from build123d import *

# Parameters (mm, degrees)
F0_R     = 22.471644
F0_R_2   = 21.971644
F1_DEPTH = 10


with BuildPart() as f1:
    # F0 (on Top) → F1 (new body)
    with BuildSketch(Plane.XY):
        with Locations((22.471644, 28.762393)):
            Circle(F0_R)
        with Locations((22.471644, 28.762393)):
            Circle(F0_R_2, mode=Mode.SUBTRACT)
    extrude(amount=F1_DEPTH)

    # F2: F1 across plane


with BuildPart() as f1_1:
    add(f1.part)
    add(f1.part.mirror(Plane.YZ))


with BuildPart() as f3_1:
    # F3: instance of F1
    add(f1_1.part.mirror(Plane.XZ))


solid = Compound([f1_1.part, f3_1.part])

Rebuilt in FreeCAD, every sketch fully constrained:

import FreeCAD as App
import Part
import Sketcher
from FreeCAD import Vector
Q = App.Units.Quantity

doc = App.newDocument("Part")
body = doc.addObject("PartDesign::Body", "Body")

# Sketch on XY plane
sketch1 = body.newObject("Sketcher::SketchObject", "Sketch")
sketch1.AttachmentSupport = (doc.getObject("XY_Plane"), [""])
sketch1.MapMode = "FlatFace"
sketch1.addGeometry(Part.Circle(Vector(22, 29, 0), Vector(0, 0, 1), 22), False)
sketch1.addGeometry(Part.Circle(Vector(22, 29, 0), Vector(0, 0, 1), 22), False)
sketch1.addConstraint(Sketcher.Constraint("Coincident", 1, 3, 0, 3))
sketch1.addConstraint(Sketcher.Constraint("Diameter", 0, Q("44.943288 mm")))
sketch1.addConstraint(Sketcher.Constraint("Diameter", 1, Q("43.943288 mm")))
sketch1.addConstraint(Sketcher.Constraint("DistanceX", -1, 1, 0, 3, Q("22.471644 mm")))
sketch1.addConstraint(Sketcher.Constraint("DistanceY", -1, 1, 0, 3, Q("28.762393 mm")))
pad1 = body.newObject("PartDesign::Pad", "Pad")
pad1.Profile = sketch1
pad1.Length = 10
body2 = doc.addObject("PartDesign::Body", "Body001")
body2.AllowCompound = True
doc.recompute()

body2.BaseFeature = body
doc.recompute()

mirroring = doc.addObject("Part::Mirroring", "Mirroring")
mirroring.Source = body
mirroring.Base = Vector(0, 0, 0)
mirroring.Normal = Vector(1, 0, 0)
body3 = doc.addObject("PartDesign::Body", "Body002")
body3.BaseFeature = mirroring
boolean = body2.newObject("PartDesign::Boolean", "Boolean")
boolean.Type = "Fuse"
boolean.addObjects([body3])
doc.recompute()
body4 = doc.addObject("PartDesign::Body", "Body003")
body4.AllowCompound = True
doc.recompute()

mirroring2 = doc.addObject("Part::Mirroring", "Mirroring001")
mirroring2.Source = body2
mirroring2.Base = Vector(0, 0, 0)
mirroring2.Normal = Vector(0, -1, 0)
body4.BaseFeature = mirroring2
doc.recompute()
mirroring.Visibility = False
mirroring2.Visibility = False

doc.recompute()
